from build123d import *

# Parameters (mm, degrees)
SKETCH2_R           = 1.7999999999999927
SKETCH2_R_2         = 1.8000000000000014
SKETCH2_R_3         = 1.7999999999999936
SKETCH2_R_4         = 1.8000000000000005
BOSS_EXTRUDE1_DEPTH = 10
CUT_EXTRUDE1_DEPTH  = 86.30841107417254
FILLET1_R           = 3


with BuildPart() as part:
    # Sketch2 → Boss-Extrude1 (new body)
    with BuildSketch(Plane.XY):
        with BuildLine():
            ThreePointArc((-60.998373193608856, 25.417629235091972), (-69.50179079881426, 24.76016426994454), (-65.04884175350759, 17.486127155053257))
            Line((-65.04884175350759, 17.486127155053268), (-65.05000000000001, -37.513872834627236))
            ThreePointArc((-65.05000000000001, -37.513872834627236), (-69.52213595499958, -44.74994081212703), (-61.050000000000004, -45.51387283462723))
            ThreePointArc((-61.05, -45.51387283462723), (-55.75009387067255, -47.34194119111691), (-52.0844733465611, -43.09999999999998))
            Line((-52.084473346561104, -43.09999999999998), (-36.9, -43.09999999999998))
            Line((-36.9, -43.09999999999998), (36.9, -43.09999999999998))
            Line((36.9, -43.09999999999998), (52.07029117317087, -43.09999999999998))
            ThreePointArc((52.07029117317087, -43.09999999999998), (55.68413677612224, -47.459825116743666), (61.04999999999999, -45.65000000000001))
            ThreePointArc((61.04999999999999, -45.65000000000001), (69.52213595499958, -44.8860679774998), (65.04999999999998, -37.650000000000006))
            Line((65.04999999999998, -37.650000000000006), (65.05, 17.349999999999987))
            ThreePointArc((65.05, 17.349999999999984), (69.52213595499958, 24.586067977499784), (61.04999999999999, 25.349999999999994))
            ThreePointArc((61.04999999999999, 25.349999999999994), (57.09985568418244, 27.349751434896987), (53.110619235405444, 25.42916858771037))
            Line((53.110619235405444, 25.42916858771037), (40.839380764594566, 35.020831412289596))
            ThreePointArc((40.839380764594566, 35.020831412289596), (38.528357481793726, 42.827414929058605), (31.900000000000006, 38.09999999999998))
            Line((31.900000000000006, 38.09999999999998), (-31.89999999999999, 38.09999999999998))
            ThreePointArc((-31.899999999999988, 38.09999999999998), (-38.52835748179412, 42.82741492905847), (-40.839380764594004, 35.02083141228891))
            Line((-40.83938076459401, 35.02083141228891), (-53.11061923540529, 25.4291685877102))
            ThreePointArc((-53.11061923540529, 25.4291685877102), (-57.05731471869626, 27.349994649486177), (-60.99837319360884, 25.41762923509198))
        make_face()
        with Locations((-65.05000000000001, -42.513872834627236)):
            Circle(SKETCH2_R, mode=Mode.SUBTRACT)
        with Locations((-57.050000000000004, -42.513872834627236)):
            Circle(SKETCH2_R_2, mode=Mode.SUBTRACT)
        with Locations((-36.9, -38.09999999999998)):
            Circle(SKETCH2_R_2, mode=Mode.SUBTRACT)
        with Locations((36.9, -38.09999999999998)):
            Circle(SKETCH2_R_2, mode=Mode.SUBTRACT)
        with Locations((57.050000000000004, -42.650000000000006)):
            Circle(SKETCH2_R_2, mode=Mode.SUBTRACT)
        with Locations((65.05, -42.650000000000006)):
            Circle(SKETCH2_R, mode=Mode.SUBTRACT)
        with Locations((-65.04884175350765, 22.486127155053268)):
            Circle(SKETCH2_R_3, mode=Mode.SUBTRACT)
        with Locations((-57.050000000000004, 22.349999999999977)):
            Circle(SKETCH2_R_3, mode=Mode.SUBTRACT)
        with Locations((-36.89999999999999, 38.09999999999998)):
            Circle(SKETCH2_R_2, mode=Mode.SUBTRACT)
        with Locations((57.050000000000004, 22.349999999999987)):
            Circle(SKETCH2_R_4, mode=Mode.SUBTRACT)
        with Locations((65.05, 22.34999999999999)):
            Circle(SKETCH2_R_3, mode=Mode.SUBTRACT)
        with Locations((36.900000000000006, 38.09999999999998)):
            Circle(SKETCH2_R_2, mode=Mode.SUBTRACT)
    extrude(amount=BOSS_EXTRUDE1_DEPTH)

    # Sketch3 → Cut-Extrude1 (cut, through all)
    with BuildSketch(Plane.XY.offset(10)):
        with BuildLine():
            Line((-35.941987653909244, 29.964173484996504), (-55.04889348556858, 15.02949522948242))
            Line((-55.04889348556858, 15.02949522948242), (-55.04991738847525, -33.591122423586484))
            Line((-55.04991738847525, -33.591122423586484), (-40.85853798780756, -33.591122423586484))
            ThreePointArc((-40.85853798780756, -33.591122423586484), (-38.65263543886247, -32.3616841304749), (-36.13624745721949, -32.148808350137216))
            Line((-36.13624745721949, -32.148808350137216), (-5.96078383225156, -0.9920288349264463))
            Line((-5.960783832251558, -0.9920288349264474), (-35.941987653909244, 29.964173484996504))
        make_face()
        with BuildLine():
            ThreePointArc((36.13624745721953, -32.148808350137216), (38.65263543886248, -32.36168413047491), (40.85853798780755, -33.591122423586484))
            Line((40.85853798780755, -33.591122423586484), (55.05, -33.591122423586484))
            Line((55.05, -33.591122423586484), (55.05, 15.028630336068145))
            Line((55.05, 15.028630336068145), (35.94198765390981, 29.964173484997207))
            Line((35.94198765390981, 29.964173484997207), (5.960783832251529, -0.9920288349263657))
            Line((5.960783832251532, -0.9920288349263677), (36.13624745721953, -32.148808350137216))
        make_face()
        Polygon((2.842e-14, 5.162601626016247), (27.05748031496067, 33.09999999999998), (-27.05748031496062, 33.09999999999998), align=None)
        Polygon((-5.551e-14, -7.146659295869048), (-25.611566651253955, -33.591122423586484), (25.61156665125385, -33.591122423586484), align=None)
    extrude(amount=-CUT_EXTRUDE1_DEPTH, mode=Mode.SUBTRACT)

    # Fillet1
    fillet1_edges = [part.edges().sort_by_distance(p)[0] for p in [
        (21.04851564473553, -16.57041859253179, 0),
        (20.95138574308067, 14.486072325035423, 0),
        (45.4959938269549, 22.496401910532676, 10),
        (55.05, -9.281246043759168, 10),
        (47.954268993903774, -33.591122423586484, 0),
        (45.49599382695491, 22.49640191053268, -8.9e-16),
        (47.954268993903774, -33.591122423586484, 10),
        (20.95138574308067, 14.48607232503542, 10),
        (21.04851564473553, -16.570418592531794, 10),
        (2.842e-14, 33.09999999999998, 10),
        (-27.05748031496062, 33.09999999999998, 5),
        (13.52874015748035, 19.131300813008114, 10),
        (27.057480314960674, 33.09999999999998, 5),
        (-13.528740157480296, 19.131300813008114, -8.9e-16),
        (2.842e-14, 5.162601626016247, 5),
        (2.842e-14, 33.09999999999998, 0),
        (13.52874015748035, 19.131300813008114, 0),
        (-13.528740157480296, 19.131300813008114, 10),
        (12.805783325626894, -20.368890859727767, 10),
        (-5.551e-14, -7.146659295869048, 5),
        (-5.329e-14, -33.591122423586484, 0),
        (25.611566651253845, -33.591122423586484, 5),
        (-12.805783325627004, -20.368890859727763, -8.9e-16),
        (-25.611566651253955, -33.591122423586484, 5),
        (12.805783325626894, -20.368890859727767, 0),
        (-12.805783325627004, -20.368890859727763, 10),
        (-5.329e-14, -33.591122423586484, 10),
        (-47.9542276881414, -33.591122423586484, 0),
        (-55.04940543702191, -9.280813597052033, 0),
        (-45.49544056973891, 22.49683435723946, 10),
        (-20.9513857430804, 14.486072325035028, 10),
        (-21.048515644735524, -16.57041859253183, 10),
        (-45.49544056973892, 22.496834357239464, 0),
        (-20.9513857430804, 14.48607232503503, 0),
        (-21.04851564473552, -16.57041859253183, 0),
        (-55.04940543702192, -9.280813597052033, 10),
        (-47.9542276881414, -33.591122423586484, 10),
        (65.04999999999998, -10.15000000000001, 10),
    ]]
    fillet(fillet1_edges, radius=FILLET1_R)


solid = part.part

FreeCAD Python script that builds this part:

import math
import FreeCAD as App
import Part
import Sketcher

V = App.Vector
Q = App.Units.Quantity


def edges_at(feature, points):
    """Names of the edges that pass closest to the given points."""
    edges = feature.Shape.Edges
    near = lambda p: min(range(len(edges)), key=lambda i: edges[i].distToShape(Part.Vertex(*p))[0])
    return sorted({f"Edge{near(p) + 1}" for p in points})


def add_polygon(sketch, points):
    """Adds a closed chain of lines whose ends are joined by coincident constraints."""
    first, n = sketch.GeometryCount, len(points)
    for a, b in zip(points, points[1:] + points[:1]):
        sketch.addGeometry(Part.LineSegment(App.Vector(*a, 0), App.Vector(*b, 0)), False)
    for i in range(n):
        sketch.addConstraint(Sketcher.Constraint("Coincident", first + i, 2, first + (i + 1) % n, 1))

doc = App.newDocument("Part")
body = doc.addObject("PartDesign::Body", "Body")

# Sketch on XY plane
sketch1 = doc.addObject("Sketcher::SketchObject", "Sketch")
body.addObject(sketch1)
sketch1.AttachmentSupport = (doc.XY_Plane, [""])
sketch1.MapMode = "FlatFace"
sketch1.addGeometry([
    Part.ArcOfCircle(Part.Circle(V(-65, 22.5, 0), V(0, 0, 1), 5), math.radians(36), math.radians(270)),  # 0
    Part.LineSegment(V(-65, 17.5, 0), V(-65, -37.5, 0)),  # 1
    Part.ArcOfCircle(Part.Circle(V(-65, -42.5, 0), V(0, 0, 1), 5), math.radians(90), math.radians(323)),  # 2
    Part.ArcOfCircle(Part.Circle(V(-57, -42.5, 0), V(0, 0, 1), 5), math.radians(-143), math.radians(-7)),  # 3
    Part.LineSegment(V(-52.1, -43.1, 0), V(52.1, -43.1, 0)),  # 4
    Part.ArcOfCircle(Part.Circle(V(57, -42.6, 0), V(0, 0, 1), 5), math.radians(-175), math.radians(-37)),  # 5
    Part.ArcOfCircle(Part.Circle(V(65, -42.6, 0), V(0, 0, 1), 5), math.radians(-143), math.radians(90)),  # 6
    Part.LineSegment(V(65, -37.6, 0), V(65, 17.4, 0)),  # 7
    Part.ArcOfCircle(Part.Circle(V(65, 22.4, 0), V(0, 0, 1), 5), math.radians(-90), math.radians(143)),  # 8
    Part.ArcOfCircle(Part.Circle(V(57, 22.4, 0), V(0, 0, 1), 5), math.radians(37), math.radians(142)),  # 9
    Part.LineSegment(V(53.1, 25.4, 0), V(40.8, 35, 0)),  # 10
    Part.ArcOfCircle(Part.Circle(V(36.9, 38.1, 0), V(0, 0, 1), 5), math.radians(-38), math.radians(180)),  # 11
    Part.LineSegment(V(31.9, 38.1, 0), V(-31.9, 38.1, 0)),  # 12
    Part.ArcOfCircle(Part.Circle(V(-36.9, 38.1, 0), V(0, 0, 1), 5), math.radians(0), math.radians(218)),  # 13
    Part.LineSegment(V(-40.8, 35, 0), V(-53.1, 25.4, 0)),  # 14
    Part.ArcOfCircle(Part.Circle(V(-57, 22.4, 0), V(0, 0, 1), 5), math.radians(38), math.radians(142)),  # 15
    Part.Circle(V(-65, -42.5, 0), V(0, 0, 1), 1.8),  # 16
    Part.Circle(V(-57, -42.5, 0), V(0, 0, 1), 1.8),  # 17
    Part.Circle(V(-36.9, -38.1, 0), V(0, 0, 1), 1.8),  # 18
    Part.Circle(V(36.9, -38.1, 0), V(0, 0, 1), 1.8),  # 19
    Part.Circle(V(57, -42.6, 0), V(0, 0, 1), 1.8),  # 20
    Part.Circle(V(65, -42.6, 0), V(0, 0, 1), 1.8),  # 21
    Part.Circle(V(-65, 22.5, 0), V(0, 0, 1), 1.8),  # 22
    Part.Circle(V(-57, 22.4, 0), V(0, 0, 1), 1.8),  # 23
    Part.Circle(V(-36.9, 38.1, 0), V(0, 0, 1), 1.8),  # 24
    Part.Circle(V(57, 22.4, 0), V(0, 0, 1), 1.8),  # 25
    Part.Circle(V(65, 22.4, 0), V(0, 0, 1), 1.8),  # 26
    Part.Circle(V(36.9, 38.1, 0), V(0, 0, 1), 1.8),  # 27
], False)
sketch1.addConstraint([
    Sketcher.Constraint("Coincident", 0, 2, 1, 1),
    Sketcher.Constraint("Coincident", 1, 2, 2, 1),
    Sketcher.Constraint("Coincident", 2, 2, 3, 1),
    Sketcher.Constraint("Coincident", 3, 2, 4, 1),
    Sketcher.Constraint("Coincident", 4, 2, 5, 1),
    Sketcher.Constraint("Coincident", 5, 2, 6, 1),
    Sketcher.Constraint("Coincident", 6, 2, 7, 1),
    Sketcher.Constraint("Coincident", 7, 2, 8, 1),
    Sketcher.Constraint("Coincident", 8, 2, 9, 1),
    Sketcher.Constraint("Coincident", 9, 2, 10, 1),
    Sketcher.Constraint("Coincident", 10, 2, 11, 1),
    Sketcher.Constraint("Coincident", 11, 2, 12, 1),
    Sketcher.Constraint("Coincident", 12, 2, 13, 1),
    Sketcher.Constraint("Coincident", 13, 2, 14, 1),
    Sketcher.Constraint("Coincident", 14, 2, 15, 1),
    Sketcher.Constraint("Coincident", 15, 2, 0, 1),
    Sketcher.Constraint("Horizontal", 4),
    Sketcher.Constraint("Vertical", 7),
    Sketcher.Constraint("Horizontal", 12),
    Sketcher.Constraint("Coincident", 16, 3, 2, 3),
    Sketcher.Constraint("Coincident", 17, 3, 3, 3),
    Sketcher.Constraint("Coincident", 20, 3, 5, 3),
    Sketcher.Constraint("Coincident", 21, 3, 6, 3),
    Sketcher.Constraint("Coincident", 22, 3, 0, 3),
    Sketcher.Constraint("Coincident", 23, 3, 15, 3),
    Sketcher.Constraint("Coincident", 24, 3, 13, 3),
    Sketcher.Constraint("Coincident", 25, 3, 9, 3),
    Sketcher.Constraint("Coincident", 26, 3, 8, 3),
    Sketcher.Constraint("Coincident", 27, 3, 11, 3),
    Sketcher.Constraint("Equal", 0, 2),
    Sketcher.Constraint("Equal", 2, 3),
    Sketcher.Constraint("Equal", 3, 5),
    Sketcher.Constraint("Equal", 5, 6),
    Sketcher.Constraint("Equal", 6, 8),
    Sketcher.Constraint("Equal", 8, 9),
    Sketcher.Constraint("Equal", 9, 11),
    Sketcher.Constraint("Equal", 11, 13),
    Sketcher.Constraint("Equal", 13, 15),
    Sketcher.Constraint("Equal", 16, 17),
    Sketcher.Constraint("Equal", 17, 18),
    Sketcher.Constraint("Equal", 18, 19),
    Sketcher.Constraint("Equal", 19, 20),
    Sketcher.Constraint("Equal", 20, 21),
    Sketcher.Constraint("Equal", 21, 22),
    Sketcher.Constraint("Equal", 22, 23),
    Sketcher.Constraint("Equal", 23, 24),
    Sketcher.Constraint("Equal", 24, 25),
    Sketcher.Constraint("Equal", 25, 26),
    Sketcher.Constraint("Equal", 26, 27),
    Sketcher.Constraint("Symmetric", 11, 3, 18, 3, -1, 1),
    Sketcher.Constraint("Symmetric", 13, 3, 19, 3, -1, 1),
    Sketcher.Constraint("Symmetric", 11, 3, 13, 3, -2),
    Sketcher.Constraint("Symmetric", 9, 3, 15, 3, -2),
    Sketcher.Constraint("Horizontal", 2, 3, 3, 3),
    Sketcher.Constraint("Horizontal", 5, 3, 6, 3),
    Sketcher.Constraint("Horizontal", 8, 3, 9, 3),
    Sketcher.Constraint("Horizontal", 27, 3, 11, 2),
    Sketcher.Constraint("Horizontal", 10, 2, 13, 2),
    Sketcher.Constraint("Horizontal", 9, 2, 14, 2),
    Sketcher.Constraint("Vertical", 6, 3, 8, 3),
    Sketcher.Constraint("Vertical", 5, 3, 9, 3),
    Sketcher.Constraint("Vertical", 3, 3, 15, 3),
    Sketcher.Constraint("Vertical", 22, 3, 0, 2),
    Sketcher.Constraint("Vertical", 16, 3, 1, 2),
    Sketcher.Constraint("Vertical", 26, 3, 6, 2),
    Sketcher.Constraint("Radius", 0, Q("5 mm")),
    Sketcher.Constraint("Diameter", 16, Q("3.6 mm")),
    Sketcher.Constraint("DistanceY", 7, 1, 7, 2, Q("55 mm")),
    Sketcher.Constraint("Distance", 1, Q("55 mm")),
    Sketcher.Constraint("DistanceX", 12, 2, 12, 1, Q("63.8 mm")),
    Sketcher.Constraint("DistanceX", 2, 3, 3, 3, Q("8 mm")),
    Sketcher.Constraint("DistanceX", 5, 3, 6, 3, Q("8 mm")),
    Sketcher.Constraint("DistanceY", 4, 2, 19, 3, Q("5 mm")),
    Sketcher.Constraint("DistanceY", -1, 1, 11, 3, Q("38.1 mm")),
    Sketcher.Constraint("DistanceX", 3, 3, 5, 3, Q("114.1 mm")),
    Sketcher.Constraint("DistanceY", 5, 3, -1, 1, Q("42.65 mm")),
    Sketcher.Constraint("DistanceX", 4, 1, 4, 2, Q("104.154765 mm")),
    Sketcher.Constraint("DistanceX", 0, 3, -1, 1, Q("65.048842 mm")),
    Sketcher.Constraint("DistanceX", -1, 1, 9, 2, Q("53.110619 mm")),
    Sketcher.Constraint("DistanceX", -1, 1, 10, 2, Q("40.839381 mm")),
])
pad1 = doc.addObject("PartDesign::Pad", "Pad")
body.addObject(pad1)
pad1.Profile = sketch1
pad1.Length = 10

# Sketch on XY plane
sketch2 = doc.addObject("Sketcher::SketchObject", "Sketch001")
body.addObject(sketch2)
sketch2.AttachmentSupport = (doc.XY_Plane, [""])
sketch2.MapMode = "FlatFace"
sketch2.AttachmentOffset = App.Placement(V(0, 0, 10), App.Rotation())
sketch2.addGeometry(Part.LineSegment(V(-35.9, 30, 0), V(-55, 15, 0)), False)  # 0
sketch2.addGeometry(Part.LineSegment(V(-55, 15, 0), V(-55, -33.6, 0)), False)  # 1
sketch2.addGeometry(Part.LineSegment(V(-55, -33.6, 0), V(-40.9, -33.6, 0)), False)  # 2
sketch2.addGeometry(Part.ArcOfCircle(Part.Circle(V(-36.9, -38.1, 0), V(0, 0, 1), 6), math.radians(83), math.radians(131)), False)  # 3
sketch2.addGeometry(Part.LineSegment(V(-36.1, -32.1, 0), V(-6, -1, 0)), False)  # 4
sketch2.addGeometry(Part.LineSegment(V(-6, -1, 0), V(-35.9, 30, 0)), False)  # 5
sketch2.addGeometry(Part.ArcOfCircle(Part.Circle(V(36.9, -38.1, 0), V(0, 0, 1), 6), math.radians(49), math.radians(97)), False)  # 6
sketch2.addGeometry(Part.LineSegment(V(40.9, -33.6, 0), V(55, -33.6, 0)), False)  # 7
sketch2.addGeometry(Part.LineSegment(V(55, -33.6, 0), V(55, 15, 0)), False)  # 8
sketch2.addGeometry(Part.LineSegment(V(55, 15, 0), V(35.9, 30, 0)), False)  # 9
sketch2.addGeometry(Part.LineSegment(V(35.9, 30, 0), V(6, -1, 0)), False)  # 10
sketch2.addGeometry(Part.LineSegment(V(6, -1, 0), V(36.1, -32.1, 0)), False)  # 11
add_polygon(sketch2, [(0, 5.2), (27.1, 33.1), (-27.1, 33.1)])  # lines 12-14
add_polygon(sketch2, [(0, -7.1), (-25.6, -33.6), (25.6, -33.6)])  # lines 15-17
sketch2.addConstraint([
    Sketcher.Constraint("Coincident", 0, 2, 1, 1),
    Sketcher.Constraint("Coincident", 1, 2, 2, 1),
    Sketcher.Constraint("Coincident", 2, 2, 3, 2),
    Sketcher.Constraint("Coincident", 3, 1, 4, 1),
    Sketcher.Constraint("Coincident", 4, 2, 5, 1),
    Sketcher.Constraint("Coincident", 5, 2, 0, 1),
    Sketcher.Constraint("Coincident", 6, 1, 7, 1),
    Sketcher.Constraint("Coincident", 7, 2, 8, 1),
    Sketcher.Constraint("Coincident", 8, 2, 9, 1),
    Sketcher.Constraint("Coincident", 9, 2, 10, 1),
    Sketcher.Constraint("Coincident", 10, 2, 11, 1),
    Sketcher.Constraint("Coincident", 11, 2, 6, 2),
    Sketcher.Constraint("Horizontal", 2),
    Sketcher.Constraint("Horizontal", 7),
    Sketcher.Constraint("Vertical", 8),
    Sketcher.Constraint("Horizontal", 13),
    Sketcher.Constraint("Horizontal", 16),
    Sketcher.Constraint("Equal", 3, 6),
    Sketcher.Constraint("Symmetric", 3, 3, 6, 3, -2),
    Sketcher.Constraint("Symmetric", 5, 2, 9, 2, -2),
    Sketcher.Constraint("Symmetric", 4, 2, 10, 2, -2),
    Sketcher.Constraint("PointOnObject", 14, 2, -2),
    Sketcher.Constraint("PointOnObject", 17, 2, -2),
    Sketcher.Constraint("Parallel", 4, 10),
    Sketcher.Constraint("Parallel", 5, 11),
    Sketcher.Constraint("Parallel", 10, 12),
    Sketcher.Constraint("Parallel", 11, 14),
    Sketcher.Constraint("Parallel", 12, 15),
    Sketcher.Constraint("Parallel", 14, 17),
    Sketcher.Constraint("Horizontal", 2, 2, 6, 1),
    Sketcher.Constraint("Horizontal", 7, 2, 15, 2),
    Sketcher.Constraint("Radius", 3, Q("6 mm")),
    Sketcher.Constraint("DistanceX", 3, 3, -1, 1, Q("36.9 mm")),
    Sketcher.Constraint("DistanceY", 3, 3, -1, 1, Q("38.1 mm")),
    Sketcher.Constraint("DistanceY", -1, 1, 12, 2, Q("33.1 mm")),
    Sketcher.Constraint("DistanceX", -1, 1, 7, 2, Q("55.05 mm")),
    Sketcher.Constraint("DistanceX", 2, 1, 2, 2, Q("14.191379 mm")),
    Sketcher.Constraint("DistanceX", 13, 2, 13, 1, Q("54.114961 mm")),
    Sketcher.Constraint("DistanceY", -1, 1, 14, 2, Q("5.162602 mm")),
    Sketcher.Constraint("Distance", 5, Q("43.094768 mm")),
    Sketcher.Constraint("Distance", 9, Q("24.252558 mm")),
    Sketcher.Constraint("DistanceX", 7, 1, 7, 2, Q("14.191462 mm")),
    Sketcher.Constraint("DistanceX", 16, 1, 16, 2, Q("51.223133 mm")),
    Sketcher.Constraint("DistanceY", 8, 1, 8, 2, Q("48.619753 mm")),
    Sketcher.Constraint("DistanceY", 3, 1, -1, 1, Q("32.148808 mm")),
    Sketcher.Constraint("DistanceX", 0, 2, 4, 2, Q("49.08811 mm")),
    Sketcher.Constraint("DistanceY", 0, 2, 5, 2, Q("14.934678 mm")),
])
pocket1 = doc.addObject("PartDesign::Pocket", "Pocket")
body.addObject(pocket1)
pocket1.Profile = sketch2
pocket1.Type = "ThroughAll"
doc.recompute()

fillet = doc.addObject("PartDesign::Fillet", "Fillet")
body.addObject(fillet)
fillet.Base = (pocket1, edges_at(pocket1, [
    (21.049, -16.57, 0),
    (20.951, 14.486, 0),
    (45.496, 22.496, 10),
    (55.05, -9.281, 10),
    (47.954, -33.591, 0),
    (45.496, 22.496, 0),
    (47.954, -33.591, 10),
    (20.951, 14.486, 10),
    (21.049, -16.57, 10),
    (0, 33.1, 10),
    (-27.057, 33.1, 5),
    (13.529, 19.131, 10),
    (27.057, 33.1, 5),
    (-13.529, 19.131, 0),
    (0, 5.163, 5),
    (0, 33.1, 0),
    (13.529, 19.131, 0),
    (-13.529, 19.131, 10),
    (12.806, -20.369, 10),
    (0, -7.147, 5),
    (0, -33.591, 0),
    (25.612, -33.591, 5),
    (-12.806, -20.369, 0),
    (-25.612, -33.591, 5),
    (12.806, -20.369, 0),
    (-12.806, -20.369, 10),
    (0, -33.591, 10),
    (-47.954, -33.591, 0),
    (-55.049, -9.281, 0),
    (-45.495, 22.497, 10),
    (-20.951, 14.486, 10),
    (-21.049, -16.57, 10),
    (-45.495, 22.497, 0),
    (-20.951, 14.486, 0),
    (-21.049, -16.57, 0),
    (-55.049, -9.281, 10),
    (-47.954, -33.591, 10),
    (65.05, -10.15, 10),
]))
fillet.Radius = 3

doc.recompute()
